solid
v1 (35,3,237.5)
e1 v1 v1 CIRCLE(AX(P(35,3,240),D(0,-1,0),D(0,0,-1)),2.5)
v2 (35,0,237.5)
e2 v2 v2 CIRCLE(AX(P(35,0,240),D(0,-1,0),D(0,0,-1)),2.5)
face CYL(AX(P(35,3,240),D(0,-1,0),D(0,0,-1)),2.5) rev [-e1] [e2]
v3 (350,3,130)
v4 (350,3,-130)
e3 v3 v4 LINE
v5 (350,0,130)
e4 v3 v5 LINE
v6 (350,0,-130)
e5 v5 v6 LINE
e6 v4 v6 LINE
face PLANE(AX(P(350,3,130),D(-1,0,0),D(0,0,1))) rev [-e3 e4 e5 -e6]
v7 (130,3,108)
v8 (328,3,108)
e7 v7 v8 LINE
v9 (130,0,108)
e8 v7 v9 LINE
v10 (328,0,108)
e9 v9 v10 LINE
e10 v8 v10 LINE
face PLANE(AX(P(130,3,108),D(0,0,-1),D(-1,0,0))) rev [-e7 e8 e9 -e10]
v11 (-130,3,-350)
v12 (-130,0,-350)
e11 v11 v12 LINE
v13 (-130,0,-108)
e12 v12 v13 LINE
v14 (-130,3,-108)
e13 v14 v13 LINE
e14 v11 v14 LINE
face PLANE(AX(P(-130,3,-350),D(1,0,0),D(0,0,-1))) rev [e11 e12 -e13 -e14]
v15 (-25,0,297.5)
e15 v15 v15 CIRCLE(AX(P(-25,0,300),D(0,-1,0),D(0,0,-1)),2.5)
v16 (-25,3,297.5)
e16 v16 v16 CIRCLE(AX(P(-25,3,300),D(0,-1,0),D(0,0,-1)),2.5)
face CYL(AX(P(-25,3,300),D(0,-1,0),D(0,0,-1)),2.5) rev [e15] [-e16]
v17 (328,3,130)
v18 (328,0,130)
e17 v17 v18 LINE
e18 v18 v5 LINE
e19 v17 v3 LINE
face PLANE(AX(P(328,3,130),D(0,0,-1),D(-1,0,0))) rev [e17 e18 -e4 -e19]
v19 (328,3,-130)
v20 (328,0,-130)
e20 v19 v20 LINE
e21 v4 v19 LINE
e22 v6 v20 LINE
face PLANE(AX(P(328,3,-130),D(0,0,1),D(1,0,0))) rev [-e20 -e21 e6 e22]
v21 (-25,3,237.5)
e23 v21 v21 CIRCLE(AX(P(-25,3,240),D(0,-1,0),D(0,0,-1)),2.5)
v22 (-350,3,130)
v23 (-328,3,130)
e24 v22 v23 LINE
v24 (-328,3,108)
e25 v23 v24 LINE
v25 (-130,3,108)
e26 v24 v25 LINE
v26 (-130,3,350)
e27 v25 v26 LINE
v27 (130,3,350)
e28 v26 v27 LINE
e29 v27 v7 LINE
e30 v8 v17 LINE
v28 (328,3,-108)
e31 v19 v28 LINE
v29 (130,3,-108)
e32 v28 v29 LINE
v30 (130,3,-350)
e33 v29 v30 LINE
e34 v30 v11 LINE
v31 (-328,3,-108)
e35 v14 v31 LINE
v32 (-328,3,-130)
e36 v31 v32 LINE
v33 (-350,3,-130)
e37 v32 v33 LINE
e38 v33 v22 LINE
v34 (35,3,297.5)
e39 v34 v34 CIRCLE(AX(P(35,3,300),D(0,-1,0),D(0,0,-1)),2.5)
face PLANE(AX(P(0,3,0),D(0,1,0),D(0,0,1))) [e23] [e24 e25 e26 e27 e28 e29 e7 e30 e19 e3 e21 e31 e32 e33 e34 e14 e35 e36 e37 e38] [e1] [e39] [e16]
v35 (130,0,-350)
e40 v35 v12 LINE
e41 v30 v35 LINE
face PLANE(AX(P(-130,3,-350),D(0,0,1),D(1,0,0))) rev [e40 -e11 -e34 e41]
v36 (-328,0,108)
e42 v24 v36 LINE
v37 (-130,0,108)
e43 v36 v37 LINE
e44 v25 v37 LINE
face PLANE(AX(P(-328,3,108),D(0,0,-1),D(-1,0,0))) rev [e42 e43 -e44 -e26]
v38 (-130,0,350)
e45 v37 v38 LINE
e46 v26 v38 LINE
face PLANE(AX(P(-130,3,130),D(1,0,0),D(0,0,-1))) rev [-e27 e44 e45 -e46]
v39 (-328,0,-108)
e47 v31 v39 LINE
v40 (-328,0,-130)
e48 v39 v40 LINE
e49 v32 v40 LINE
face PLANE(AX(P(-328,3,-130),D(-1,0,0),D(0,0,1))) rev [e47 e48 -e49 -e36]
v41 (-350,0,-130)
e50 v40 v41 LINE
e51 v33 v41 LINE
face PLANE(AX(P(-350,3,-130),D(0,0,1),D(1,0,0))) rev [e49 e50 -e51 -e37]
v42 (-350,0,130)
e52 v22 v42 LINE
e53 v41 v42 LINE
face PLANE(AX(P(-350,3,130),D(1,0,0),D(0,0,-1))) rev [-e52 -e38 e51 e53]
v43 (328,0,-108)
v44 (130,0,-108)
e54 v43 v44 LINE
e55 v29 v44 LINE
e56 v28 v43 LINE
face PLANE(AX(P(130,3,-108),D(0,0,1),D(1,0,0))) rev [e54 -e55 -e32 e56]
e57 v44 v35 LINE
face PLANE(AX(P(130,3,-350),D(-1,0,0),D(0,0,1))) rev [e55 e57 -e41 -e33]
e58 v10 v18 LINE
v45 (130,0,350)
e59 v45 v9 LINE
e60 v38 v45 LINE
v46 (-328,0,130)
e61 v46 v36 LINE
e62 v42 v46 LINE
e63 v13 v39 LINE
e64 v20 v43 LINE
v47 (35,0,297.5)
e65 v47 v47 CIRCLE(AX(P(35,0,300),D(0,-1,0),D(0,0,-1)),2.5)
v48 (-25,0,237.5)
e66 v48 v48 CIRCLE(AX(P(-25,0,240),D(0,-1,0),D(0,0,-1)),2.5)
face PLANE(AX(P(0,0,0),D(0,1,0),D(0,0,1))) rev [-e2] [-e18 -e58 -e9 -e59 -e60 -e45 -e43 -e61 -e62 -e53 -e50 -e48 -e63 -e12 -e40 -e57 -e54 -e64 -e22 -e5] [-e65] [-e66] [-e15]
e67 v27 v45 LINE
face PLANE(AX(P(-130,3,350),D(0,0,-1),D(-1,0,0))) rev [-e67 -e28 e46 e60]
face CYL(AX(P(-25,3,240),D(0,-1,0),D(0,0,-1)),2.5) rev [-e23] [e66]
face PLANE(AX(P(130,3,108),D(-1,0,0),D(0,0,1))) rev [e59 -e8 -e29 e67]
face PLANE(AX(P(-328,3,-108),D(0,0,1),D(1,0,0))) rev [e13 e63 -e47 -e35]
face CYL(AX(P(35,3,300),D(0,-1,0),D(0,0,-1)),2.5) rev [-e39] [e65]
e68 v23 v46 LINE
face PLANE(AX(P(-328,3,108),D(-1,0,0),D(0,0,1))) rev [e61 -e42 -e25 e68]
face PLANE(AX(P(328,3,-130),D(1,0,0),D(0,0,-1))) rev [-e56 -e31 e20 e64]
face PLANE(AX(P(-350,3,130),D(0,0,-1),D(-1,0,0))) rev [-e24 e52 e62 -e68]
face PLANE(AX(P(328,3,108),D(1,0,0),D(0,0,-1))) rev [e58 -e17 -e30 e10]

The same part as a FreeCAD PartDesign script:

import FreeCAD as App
import Part
import Sketcher

V = App.Vector
Q = App.Units.Quantity

doc = App.newDocument("Part")
params = doc.addObject("Spreadsheet::Sheet", "Params")
for row, (alias, value) in enumerate([
    ("sketch1_width", "22 mm"),
    ("sketch1_width2", "198 mm"),
    ("sketch1_width3", "260 mm"),
    ("sketch1_height", "242 mm"),
    ("pad1_length", "3 mm"),
    ("sketch2_diameter", "5 mm"),
], start=1):
    params.set(f"A{row}", alias)
    params.set(f"B{row}", "=" + value)
    params.setAlias(f"B{row}", alias)

body = doc.addObject("PartDesign::Body", "Body")

# Sketch on XZ plane
sketch1 = body.newObject("Sketcher::SketchObject", "Sketch")
sketch1.AttachmentSupport = (doc.getObject("XZ_Plane"), [""])
sketch1.MapMode = "FlatFace"
sketch1.addGeometry([
    Part.LineSegment(V(-350, 130, 0), V(-328, 130, 0)),  # 0
    Part.LineSegment(V(-328, 130, 0), V(-328, 108, 0)),  # 1
    Part.LineSegment(V(-328, 108, 0), V(-130, 108, 0)),  # 2
    Part.LineSegment(V(-130, 108, 0), V(-130, 350, 0)),  # 3
    Part.LineSegment(V(-130, 350, 0), V(130, 350, 0)),  # 4
    Part.LineSegment(V(130, 350, 0), V(130, 108, 0)),  # 5
    Part.LineSegment(V(130, 108, 0), V(328, 108, 0)),  # 6
    Part.LineSegment(V(328, 108, 0), V(328, 130, 0)),  # 7
    Part.LineSegment(V(328, 130, 0), V(350, 130, 0)),  # 8
    Part.LineSegment(V(350, 130, 0), V(350, -130, 0)),  # 9
    Part.LineSegment(V(350, -130, 0), V(328, -130, 0)),  # 10
    Part.LineSegment(V(328, -130, 0), V(328, -108, 0)),  # 11
    Part.LineSegment(V(328, -108, 0), V(130, -108, 0)),  # 12
    Part.LineSegment(V(130, -108, 0), V(130, -350, 0)),  # 13
    Part.LineSegment(V(130, -350, 0), V(-130, -350, 0)),  # 14
    Part.LineSegment(V(-130, -350, 0), V(-130, -108, 0)),  # 15
    Part.LineSegment(V(-130, -108, 0), V(-328, -108, 0)),  # 16
    Part.LineSegment(V(-328, -108, 0), V(-328, -130, 0)),  # 17
    Part.LineSegment(V(-328, -130, 0), V(-350, -130, 0)),  # 18
    Part.LineSegment(V(-350, -130, 0), V(-350, 130, 0)),  # 19
], False)
sketch1.addConstraint([
    Sketcher.Constraint("Coincident", 0, 2, 1, 1),
    Sketcher.Constraint("Coincident", 1, 2, 2, 1),
    Sketcher.Constraint("Coincident", 2, 2, 3, 1),
    Sketcher.Constraint("Coincident", 3, 2, 4, 1),
    Sketcher.Constraint("Coincident", 4, 2, 5, 1),
    Sketcher.Constraint("Coincident", 5, 2, 6, 1),
    Sketcher.Constraint("Coincident", 6, 2, 7, 1),
    Sketcher.Constraint("Coincident", 7, 2, 8, 1),
    Sketcher.Constraint("Coincident", 8, 2, 9, 1),
    Sketcher.Constraint("Coincident", 9, 2, 10, 1),
    Sketcher.Constraint("Coincident", 10, 2, 11, 1),
    Sketcher.Constraint("Coincident", 11, 2, 12, 1),
    Sketcher.Constraint("Coincident", 12, 2, 13, 1),
    Sketcher.Constraint("Coincident", 13, 2, 14, 1),
    Sketcher.Constraint("Coincident", 14, 2, 15, 1),
    Sketcher.Constraint("Coincident", 15, 2, 16, 1),
    Sketcher.Constraint("Coincident", 16, 2, 17, 1),
    Sketcher.Constraint("Coincident", 17, 2, 18, 1),
    Sketcher.Constraint("Coincident", 18, 2, 19, 1),
    Sketcher.Constraint("Coincident", 19, 2, 0, 1),
    Sketcher.Constraint("Horizontal", 0),
    Sketcher.Constraint("Vertical", 1),
    Sketcher.Constraint("Horizontal", 2),
    Sketcher.Constraint("Vertical", 3),
    Sketcher.Constraint("Horizontal", 4),
    Sketcher.Constraint("Vertical", 5),
    Sketcher.Constraint("Horizontal", 6),
    Sketcher.Constraint("Vertical", 7),
    Sketcher.Constraint("Horizontal", 8),
    Sketcher.Constraint("Vertical", 9),
    Sketcher.Constraint("Horizontal", 10),
    Sketcher.Constraint("Vertical", 11),
    Sketcher.Constraint("Horizontal", 12),
    Sketcher.Constraint("Vertical", 13),
    Sketcher.Constraint("Horizontal", 14),
    Sketcher.Constraint("Vertical", 15),
    Sketcher.Constraint("Horizontal", 16),
    Sketcher.Constraint("Vertical", 17),
    Sketcher.Constraint("Horizontal", 18),
    Sketcher.Constraint("Vertical", 19),
    Sketcher.Constraint("Symmetric", 0, 2, 10, 2, -1, 1),
    Sketcher.Constraint("Symmetric", 2, 2, 12, 2, -1, 1),
    Sketcher.Constraint("Symmetric", 4, 2, 14, 2, -1, 1),
    Sketcher.Constraint("Symmetric", 6, 2, 16, 2, -1, 1),
    Sketcher.Constraint("Symmetric", 8, 2, 18, 2, -1, 1),
    Sketcher.Constraint("Symmetric", 2, 2, 5, 2, -2),
    Sketcher.Constraint("Symmetric", 0, 2, 7, 2, -2),
    Sketcher.Constraint("Equal", 18, 1),
    Sketcher.Constraint("Equal", 14, 9),
    Sketcher.Constraint("DistanceX", 0, 1, 0, 2, Q("22 mm")),
    Sketcher.Constraint("DistanceX", 2, 1, 2, 2, Q("198 mm")),
    Sketcher.Constraint("DistanceX", 4, 1, 4, 2, Q("260 mm")),
    Sketcher.Constraint("DistanceY", 3, 1, 3, 2, Q("242 mm")),
])
sketch1.setExpression("Constraints[49]", "Params.sketch1_width")
sketch1.setExpression("Constraints[50]", "Params.sketch1_width2")
sketch1.setExpression("Constraints[51]", "Params.sketch1_width3")
sketch1.setExpression("Constraints[52]", "Params.sketch1_height")
pad1 = body.newObject("PartDesign::Pad", "Pad")
pad1.Profile = sketch1
pad1.setExpression("Length", "Params.pad1_length")
pad1.Reversed = True

# Sketch on XZ plane
sketch2 = body.newObject("Sketcher::SketchObject", "Sketch001")
sketch2.AttachmentSupport = (doc.getObject("XZ_Plane"), [""])
sketch2.MapMode = "FlatFace"
sketch2.addGeometry([
    Part.Circle(V(-25, 300, 0), V(0, 0, 1), 2.5),
    Part.Circle(V(35, 300, 0), V(0, 0, 1), 2.5),
    Part.Circle(V(-25, 240, 0), V(0, 0, 1), 2.5),
    Part.Circle(V(35, 240, 0), V(0, 0, 1), 2.5),
], False)
sketch2.addConstraint([
    Sketcher.Constraint("Equal", 0, 1),
    Sketcher.Constraint("Equal", 1, 2),
    Sketcher.Constraint("Equal", 2, 3),
    Sketcher.Constraint("Horizontal", 0, 3, 1, 3),
    Sketcher.Constraint("Horizontal", 2, 3, 3, 3),
    Sketcher.Constraint("Vertical", 0, 3, 2, 3),
    Sketcher.Constraint("Vertical", 1, 3, 3, 3),
    Sketcher.Constraint("Diameter", 0, Q("5 mm")),
    Sketcher.Constraint("DistanceX", 0, 3, -1, 1, Q("25 mm")),
    Sketcher.Constraint("DistanceY", -1, 1, 0, 3, Q("300 mm")),
    Sketcher.Constraint("DistanceX", -1, 1, 1, 3, Q("35 mm")),
    Sketcher.Constraint("DistanceY", -1, 1, 2, 3, Q("240 mm")),
])
sketch2.setExpression("Constraints[7]", "Params.sketch2_diameter")
pocket1 = body.newObject("PartDesign::Pocket", "Pocket")
pocket1.Profile = sketch2
pocket1.Type = "ThroughAll"

doc.recompute()
